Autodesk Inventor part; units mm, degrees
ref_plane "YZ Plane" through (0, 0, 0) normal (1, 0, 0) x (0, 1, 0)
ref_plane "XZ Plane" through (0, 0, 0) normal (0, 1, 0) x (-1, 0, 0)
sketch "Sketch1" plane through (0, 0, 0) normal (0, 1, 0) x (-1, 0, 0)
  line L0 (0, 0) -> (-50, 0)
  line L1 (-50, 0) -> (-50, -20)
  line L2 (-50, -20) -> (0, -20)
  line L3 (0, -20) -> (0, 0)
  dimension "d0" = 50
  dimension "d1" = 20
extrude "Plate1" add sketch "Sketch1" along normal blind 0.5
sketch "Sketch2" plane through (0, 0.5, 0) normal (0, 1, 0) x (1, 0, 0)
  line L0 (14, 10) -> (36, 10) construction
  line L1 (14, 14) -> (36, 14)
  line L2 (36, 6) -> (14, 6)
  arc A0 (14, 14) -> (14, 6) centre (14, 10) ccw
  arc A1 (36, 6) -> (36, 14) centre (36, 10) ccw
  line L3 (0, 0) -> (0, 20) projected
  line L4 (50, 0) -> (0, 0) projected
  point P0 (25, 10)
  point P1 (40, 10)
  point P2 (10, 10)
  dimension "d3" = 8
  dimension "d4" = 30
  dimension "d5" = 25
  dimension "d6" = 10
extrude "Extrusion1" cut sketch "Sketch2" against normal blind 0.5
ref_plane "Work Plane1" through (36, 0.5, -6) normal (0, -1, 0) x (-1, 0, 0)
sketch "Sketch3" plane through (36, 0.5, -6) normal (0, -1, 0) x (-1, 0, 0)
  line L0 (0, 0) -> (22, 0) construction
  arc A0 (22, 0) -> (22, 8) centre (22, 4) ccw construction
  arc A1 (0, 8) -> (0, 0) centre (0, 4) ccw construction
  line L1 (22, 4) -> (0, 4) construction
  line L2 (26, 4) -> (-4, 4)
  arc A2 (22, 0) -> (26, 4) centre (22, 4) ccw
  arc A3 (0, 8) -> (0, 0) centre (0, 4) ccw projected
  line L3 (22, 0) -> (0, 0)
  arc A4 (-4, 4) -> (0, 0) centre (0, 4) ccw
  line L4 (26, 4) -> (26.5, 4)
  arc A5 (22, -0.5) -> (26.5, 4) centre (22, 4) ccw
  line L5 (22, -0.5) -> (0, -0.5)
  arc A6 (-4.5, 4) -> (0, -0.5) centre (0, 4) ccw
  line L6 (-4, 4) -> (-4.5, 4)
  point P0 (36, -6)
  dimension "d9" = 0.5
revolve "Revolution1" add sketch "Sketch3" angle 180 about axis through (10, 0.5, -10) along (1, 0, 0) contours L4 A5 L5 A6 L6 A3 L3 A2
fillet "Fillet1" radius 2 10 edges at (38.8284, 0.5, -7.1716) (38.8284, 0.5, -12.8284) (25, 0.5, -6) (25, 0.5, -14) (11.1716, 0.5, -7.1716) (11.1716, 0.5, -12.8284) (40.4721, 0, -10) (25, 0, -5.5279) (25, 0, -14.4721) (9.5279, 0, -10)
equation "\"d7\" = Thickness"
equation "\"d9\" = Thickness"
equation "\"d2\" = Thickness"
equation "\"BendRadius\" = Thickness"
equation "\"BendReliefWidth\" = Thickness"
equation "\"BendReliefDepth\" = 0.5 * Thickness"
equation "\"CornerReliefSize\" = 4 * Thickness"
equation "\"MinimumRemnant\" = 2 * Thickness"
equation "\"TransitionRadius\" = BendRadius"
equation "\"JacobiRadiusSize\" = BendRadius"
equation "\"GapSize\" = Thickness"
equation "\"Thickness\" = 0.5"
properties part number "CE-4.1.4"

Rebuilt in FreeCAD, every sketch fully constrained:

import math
import FreeCAD as App
import Part
import Sketcher
from FreeCAD import Vector
Q = App.Units.Quantity


def edges_at(feature, points):
    """Names of the edges that pass closest to the given points."""
    edges = feature.Shape.Edges
    near = lambda p: min(range(len(edges)), key=lambda i: edges[i].distToShape(Part.Vertex(*p))[0])
    return sorted({f"Edge{near(p) + 1}" for p in points})

doc = App.newDocument("Part")
body = doc.addObject("PartDesign::Body", "Body")

# Sketch on XZ plane
sketch1 = body.newObject("Sketcher::SketchObject", "Sketch")
sketch1.AttachmentSupport = (doc.getObject("XZ_Plane"), [""])
sketch1.MapMode = "FlatFace"
sketch1.addGeometry(Part.LineSegment(Vector(0, -20, 0), Vector(0, 0, 0)), False)
sketch1.addGeometry(Part.LineSegment(Vector(0, 0, 0), Vector(50, 0, 0)), False)
sketch1.addGeometry(Part.LineSegment(Vector(50, 0, 0), Vector(50, -20, 0)), False)
sketch1.addGeometry(Part.LineSegment(Vector(50, -20, 0), Vector(0, -20, 0)), False)
sketch1.addConstraint(Sketcher.Constraint("Coincident", 0, 2, 1, 1))
sketch1.addConstraint(Sketcher.Constraint("Coincident", 1, 2, 2, 1))
sketch1.addConstraint(Sketcher.Constraint("Coincident", 2, 2, 3, 1))
sketch1.addConstraint(Sketcher.Constraint("Coincident", 3, 2, 0, 1))
sketch1.addConstraint(Sketcher.Constraint("Vertical", 0))
sketch1.addConstraint(Sketcher.Constraint("Horizontal", 1))
sketch1.addConstraint(Sketcher.Constraint("Vertical", 2))
sketch1.addConstraint(Sketcher.Constraint("Horizontal", 3))
sketch1.addConstraint(Sketcher.Constraint("Coincident", 0, 2, -1, 1))
sketch1.addConstraint(Sketcher.Constraint("DistanceX", 1, 1, 1, 2, Q("50 mm")))
sketch1.addConstraint(Sketcher.Constraint("DistanceY", 0, 1, 0, 2, Q("20 mm")))
pad1 = body.newObject("PartDesign::Pad", "Pad")
pad1.Profile = sketch1
pad1.Length = 0.5
pad1.Reversed = True

# Sketch on XZ plane
sketch2 = body.newObject("Sketcher::SketchObject", "Sketch001")
sketch2.AttachmentSupport = (doc.getObject("XZ_Plane"), [""])
sketch2.MapMode = "FlatFace"
sketch2.AttachmentOffset = App.Placement(Vector(0, 0, -0.5), App.Rotation())
sketch2.addGeometry(Part.LineSegment(Vector(36, -14, 0), Vector(14, -14, 0)), False)
sketch2.addGeometry(Part.ArcOfCircle(Part.Circle(Vector(14, -10, 0), Vector(0, 0, 1), 4), math.radians(90), math.radians(270)), False)
sketch2.addGeometry(Part.LineSegment(Vector(14, -6, 0), Vector(36, -6, 0)), False)
sketch2.addGeometry(Part.ArcOfCircle(Part.Circle(Vector(36, -10, 0), Vector(0, 0, 1), 4), math.radians(-90), math.radians(90)), False)
sketch2.addConstraint(Sketcher.Constraint("Tangent", 0, 2, 1, 2))
sketch2.addConstraint(Sketcher.Constraint("Tangent", 1, 1, 2, 1))
sketch2.addConstraint(Sketcher.Constraint("Tangent", 2, 2, 3, 2))
sketch2.addConstraint(Sketcher.Constraint("Tangent", 3, 1, 0, 1))
sketch2.addConstraint(Sketcher.Constraint("Horizontal", 0))
sketch2.addConstraint(Sketcher.Constraint("Horizontal", 2))
sketch2.addConstraint(Sketcher.Constraint("Radius", 1, Q("4 mm")))
sketch2.addConstraint(Sketcher.Constraint("DistanceY", 1, 3, -1, 1, Q("10 mm")))
sketch2.addConstraint(Sketcher.Constraint("DistanceX", 0, 2, 0, 1, Q("22 mm")))
sketch2.addConstraint(Sketcher.Constraint("DistanceX", -1, 1, 1, 3, Q("14 mm")))
pocket1 = body.newObject("PartDesign::Pocket", "Pocket")
pocket1.Profile = sketch2
pocket1.Length = 0.5
pocket1.Reversed = True

# Sketch on XZ plane
sketch3 = body.newObject("Sketcher::SketchObject", "Sketch002")
sketch3.AttachmentSupport = (doc.getObject("XZ_Plane"), [""])
sketch3.MapMode = "FlatFace"
sketch3.AttachmentOffset = App.Placement(Vector(0, 0, -0.5), App.Rotation())
sketch3.addGeometry(Part.LineSegment(Vector(9.5, -10, 0), Vector(10, -10, 0)), False)
sketch3.addGeometry(Part.ArcOfCircle(Part.Circle(Vector(14, -10, 0), Vector(0, 0, 1), 4), math.radians(90), math.radians(180)), False)
sketch3.addGeometry(Part.LineSegment(Vector(14, -6, 0), Vector(36, -6, 0)), False)
sketch3.addGeometry(Part.ArcOfCircle(Part.Circle(Vector(36, -10, 0), Vector(0, 0, 1), 4), math.radians(0), math.radians(90)), False)
sketch3.addGeometry(Part.LineSegment(Vector(40, -10, 0), Vector(40.5, -10, 0)), False)
sketch3.addGeometry(Part.ArcOfCircle(Part.Circle(Vector(36, -10, 0), Vector(0, 0, 1), 4.5), math.radians(0), math.radians(90)), False)
sketch3.addGeometry(Part.LineSegment(Vector(36, -5.5, 0), Vector(14, -5.5, 0)), False)
sketch3.addGeometry(Part.ArcOfCircle(Part.Circle(Vector(14, -10, 0), Vector(0, 0, 1), 4.5), math.radians(90), math.radians(180)), False)
sketch3.addGeometry(Part.LineSegment(Vector(9.5, -10, 0), Vector(40.5, -10, 0)), True)  # axis
sketch3.addConstraint(Sketcher.Constraint("Coincident", 0, 2, 1, 2))
sketch3.addConstraint(Sketcher.Constraint("Tangent", 1, 1, 2, 1))
sketch3.addConstraint(Sketcher.Constraint("Tangent", 2, 2, 3, 2))
sketch3.addConstraint(Sketcher.Constraint("Coincident", 3, 1, 4, 1))
sketch3.addConstraint(Sketcher.Constraint("Coincident", 4, 2, 5, 1))
sketch3.addConstraint(Sketcher.Constraint("Tangent", 5, 2, 6, 1))
sketch3.addConstraint(Sketcher.Constraint("Tangent", 6, 2, 7, 1))
sketch3.addConstraint(Sketcher.Constraint("Coincident", 7, 2, 0, 1))
sketch3.addConstraint(Sketcher.Constraint("Horizontal", 0))
sketch3.addConstraint(Sketcher.Constraint("Horizontal", 2))
sketch3.addConstraint(Sketcher.Constraint("Horizontal", 4))
sketch3.addConstraint(Sketcher.Constraint("Horizontal", 6))
sketch3.addConstraint(Sketcher.Constraint("Horizontal", 8))
sketch3.addConstraint(Sketcher.Constraint("Coincident", 5, 3, 3, 3))
sketch3.addConstraint(Sketcher.Constraint("Coincident", 7, 3, 1, 3))
sketch3.addConstraint(Sketcher.Constraint("Coincident", 8, 1, 7, 2))
sketch3.addConstraint(Sketcher.Constraint("Coincident", 8, 2, 4, 2))
sketch3.addConstraint(Sketcher.Constraint("Equal", 1, 3))
sketch3.addConstraint(Sketcher.Constraint("Horizontal", 7, 3, 0, 2))
sketch3.addConstraint(Sketcher.Constraint("DistanceX", 0, 1, 0, 2, Q("0.5 mm")))
sketch3.addConstraint(Sketcher.Constraint("Radius", 1, Q("4 mm")))
sketch3.addConstraint(Sketcher.Constraint("DistanceX", 2, 1, 2, 2, Q("22 mm")))
sketch3.addConstraint(Sketcher.Constraint("DistanceX", -1, 1, 1, 3, Q("14 mm")))
sketch3.addConstraint(Sketcher.Constraint("DistanceY", 1, 3, -1, 1, Q("10 mm")))
revolution = body.newObject("PartDesign::Revolution", "Revolution")
revolution.Profile = sketch3
revolution.ReferenceAxis = (sketch3, ["Axis0"])
revolution.Angle = 180
doc.recompute()

fillet = body.newObject("PartDesign::Fillet", "Fillet")
fillet.Base = (revolution, edges_at(revolution, [
    (38.828, 0.5, -7.172),
    (38.828, 0.5, -12.828),
    (25, 0.5, -6),
    (25, 0.5, -14),
    (11.172, 0.5, -7.172),
    (11.172, 0.5, -12.828),
    (40.472, 0, -10),
    (25, 0, -5.528),
    (25, 0, -14.472),
    (9.528, 0, -10),
]))
fillet.Radius = 2

doc.recompute()
